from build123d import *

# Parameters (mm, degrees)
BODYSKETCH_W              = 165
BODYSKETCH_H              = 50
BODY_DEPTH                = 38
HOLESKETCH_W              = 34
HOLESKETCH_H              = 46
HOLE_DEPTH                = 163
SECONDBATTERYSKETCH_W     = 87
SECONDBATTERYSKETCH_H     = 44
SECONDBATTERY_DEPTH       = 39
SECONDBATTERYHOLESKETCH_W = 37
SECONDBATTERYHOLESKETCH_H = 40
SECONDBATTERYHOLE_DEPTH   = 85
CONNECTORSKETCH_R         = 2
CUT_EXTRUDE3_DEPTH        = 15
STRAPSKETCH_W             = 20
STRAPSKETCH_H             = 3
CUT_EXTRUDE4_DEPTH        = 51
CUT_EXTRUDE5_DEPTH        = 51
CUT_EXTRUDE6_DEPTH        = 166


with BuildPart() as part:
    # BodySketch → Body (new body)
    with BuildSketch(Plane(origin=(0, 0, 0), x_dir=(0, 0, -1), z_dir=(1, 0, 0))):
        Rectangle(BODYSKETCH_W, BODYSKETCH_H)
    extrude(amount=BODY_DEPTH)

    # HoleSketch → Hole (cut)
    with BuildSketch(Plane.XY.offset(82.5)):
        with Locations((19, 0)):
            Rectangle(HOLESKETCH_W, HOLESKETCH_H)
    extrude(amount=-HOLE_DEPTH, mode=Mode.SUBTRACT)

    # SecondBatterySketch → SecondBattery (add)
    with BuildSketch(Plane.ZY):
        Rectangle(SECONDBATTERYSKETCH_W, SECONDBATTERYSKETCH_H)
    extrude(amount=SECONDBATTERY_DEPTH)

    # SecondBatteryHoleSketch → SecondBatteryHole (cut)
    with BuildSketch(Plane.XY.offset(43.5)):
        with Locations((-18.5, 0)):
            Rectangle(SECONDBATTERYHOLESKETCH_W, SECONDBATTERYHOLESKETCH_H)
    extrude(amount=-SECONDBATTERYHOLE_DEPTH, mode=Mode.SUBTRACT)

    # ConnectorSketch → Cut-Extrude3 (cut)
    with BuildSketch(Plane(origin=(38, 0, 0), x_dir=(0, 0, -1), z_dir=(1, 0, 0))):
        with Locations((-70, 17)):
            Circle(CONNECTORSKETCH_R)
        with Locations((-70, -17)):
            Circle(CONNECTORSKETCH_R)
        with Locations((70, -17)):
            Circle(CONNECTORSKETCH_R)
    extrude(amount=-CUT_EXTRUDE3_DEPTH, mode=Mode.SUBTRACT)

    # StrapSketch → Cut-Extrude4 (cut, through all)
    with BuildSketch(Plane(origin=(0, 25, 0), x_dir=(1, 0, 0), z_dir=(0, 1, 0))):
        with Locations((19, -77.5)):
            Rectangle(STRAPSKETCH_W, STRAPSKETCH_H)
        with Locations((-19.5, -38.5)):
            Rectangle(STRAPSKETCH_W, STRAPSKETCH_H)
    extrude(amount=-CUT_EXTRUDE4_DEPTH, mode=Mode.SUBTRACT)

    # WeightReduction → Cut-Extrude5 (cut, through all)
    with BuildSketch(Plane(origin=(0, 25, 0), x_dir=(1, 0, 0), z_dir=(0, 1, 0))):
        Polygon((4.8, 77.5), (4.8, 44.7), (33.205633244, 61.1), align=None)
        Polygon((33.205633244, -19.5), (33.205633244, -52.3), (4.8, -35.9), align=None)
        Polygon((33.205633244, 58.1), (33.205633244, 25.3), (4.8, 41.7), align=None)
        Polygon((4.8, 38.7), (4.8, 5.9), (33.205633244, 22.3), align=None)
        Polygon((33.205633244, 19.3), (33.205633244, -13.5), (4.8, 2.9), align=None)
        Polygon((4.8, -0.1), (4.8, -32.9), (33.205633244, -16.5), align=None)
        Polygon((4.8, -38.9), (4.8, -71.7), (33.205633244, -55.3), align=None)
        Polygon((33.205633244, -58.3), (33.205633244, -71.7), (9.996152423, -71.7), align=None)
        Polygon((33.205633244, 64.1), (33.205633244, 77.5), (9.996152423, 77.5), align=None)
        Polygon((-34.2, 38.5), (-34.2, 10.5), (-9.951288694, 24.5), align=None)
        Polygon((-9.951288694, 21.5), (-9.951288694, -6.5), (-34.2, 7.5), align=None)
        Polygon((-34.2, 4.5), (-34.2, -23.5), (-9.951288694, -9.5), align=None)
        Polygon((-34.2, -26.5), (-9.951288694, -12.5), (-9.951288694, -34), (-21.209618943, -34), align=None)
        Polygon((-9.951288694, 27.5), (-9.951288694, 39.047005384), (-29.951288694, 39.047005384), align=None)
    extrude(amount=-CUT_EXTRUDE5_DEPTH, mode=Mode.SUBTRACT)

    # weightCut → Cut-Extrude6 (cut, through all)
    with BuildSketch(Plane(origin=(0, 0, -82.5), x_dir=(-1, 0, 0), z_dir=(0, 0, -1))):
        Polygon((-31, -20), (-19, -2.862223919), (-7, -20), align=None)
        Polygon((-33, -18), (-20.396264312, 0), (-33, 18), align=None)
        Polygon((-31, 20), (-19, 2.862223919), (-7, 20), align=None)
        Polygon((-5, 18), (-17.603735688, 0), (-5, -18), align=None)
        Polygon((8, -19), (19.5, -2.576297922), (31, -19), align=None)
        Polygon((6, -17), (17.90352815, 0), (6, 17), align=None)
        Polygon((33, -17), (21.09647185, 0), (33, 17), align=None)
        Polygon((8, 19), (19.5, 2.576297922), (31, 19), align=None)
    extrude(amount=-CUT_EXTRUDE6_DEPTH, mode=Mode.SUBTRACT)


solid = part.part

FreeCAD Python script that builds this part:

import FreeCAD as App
import Part
import Sketcher
Q = App.Units.Quantity

doc = App.newDocument("Part")
body = doc.addObject("PartDesign::Body", "Body")

# Sketch on YZ plane
sketch1 = doc.addObject("Sketcher::SketchObject", "Sketch")
body.addObject(sketch1)
sketch1.AttachmentSupport = (doc.YZ_Plane, [""])
sketch1.MapMode = "FlatFace"
sketch1.addGeometry(Part.LineSegment(App.Vector(25, 82, 0), App.Vector(-25, 82, 0)), False)
sketch1.addGeometry(Part.LineSegment(App.Vector(-25, 82, 0), App.Vector(-25, -82, 0)), False)
sketch1.addGeometry(Part.LineSegment(App.Vector(-25, -82, 0), App.Vector(25, -82, 0)), False)
sketch1.addGeometry(Part.LineSegment(App.Vector(25, -82, 0), App.Vector(25, 82, 0)), False)
sketch1.addConstraint(Sketcher.Constraint("Coincident", 0, 2, 1, 1))
sketch1.addConstraint(Sketcher.Constraint("Coincident", 1, 2, 2, 1))
sketch1.addConstraint(Sketcher.Constraint("Coincident", 2, 2, 3, 1))
sketch1.addConstraint(Sketcher.Constraint("Coincident", 3, 2, 0, 1))
sketch1.addConstraint(Sketcher.Constraint("Horizontal", 0))
sketch1.addConstraint(Sketcher.Constraint("Vertical", 1))
sketch1.addConstraint(Sketcher.Constraint("Horizontal", 2))
sketch1.addConstraint(Sketcher.Constraint("Vertical", 3))
sketch1.addConstraint(Sketcher.Constraint("Symmetric", 0, 2, 2, 2, -1, 1))
sketch1.addConstraint(Sketcher.Constraint("DistanceX", 0, 2, 0, 1, Q("50 mm")))
sketch1.addConstraint(Sketcher.Constraint("DistanceY", 1, 2, 1, 1, Q("165 mm")))
pad1 = doc.addObject("PartDesign::Pad", "Pad")
body.addObject(pad1)
pad1.Profile = sketch1
pad1.Length = 38

# Sketch on XY plane
sketch2 = doc.addObject("Sketcher::SketchObject", "Sketch001")
body.addObject(sketch2)
sketch2.AttachmentSupport = (doc.XY_Plane, [""])
sketch2.MapMode = "FlatFace"
sketch2.AttachmentOffset = App.Placement(App.Vector(0, 0, 82.5), App.Rotation())
sketch2.addGeometry(Part.LineSegment(App.Vector(2, 23, 0), App.Vector(2, -23, 0)), False)
sketch2.addGeometry(Part.LineSegment(App.Vector(2, -23, 0), App.Vector(36, -23, 0)), False)
sketch2.addGeometry(Part.LineSegment(App.Vector(36, -23, 0), App.Vector(36, 23, 0)), False)
sketch2.addGeometry(Part.LineSegment(App.Vector(36, 23, 0), App.Vector(2, 23, 0)), False)
sketch2.addConstraint(Sketcher.Constraint("Coincident", 0, 2, 1, 1))
sketch2.addConstraint(Sketcher.Constraint("Coincident", 1, 2, 2, 1))
sketch2.addConstraint(Sketcher.Constraint("Coincident", 2, 2, 3, 1))
sketch2.addConstraint(Sketcher.Constraint("Coincident", 3, 2, 0, 1))
sketch2.addConstraint(Sketcher.Constraint("Vertical", 0))
sketch2.addConstraint(Sketcher.Constraint("Horizontal", 1))
sketch2.addConstraint(Sketcher.Constraint("Vertical", 2))
sketch2.addConstraint(Sketcher.Constraint("Horizontal", 3))
sketch2.addConstraint(Sketcher.Constraint("DistanceX", 1, 1, 1, 2, Q("34 mm")))
sketch2.addConstraint(Sketcher.Constraint("DistanceY", 0, 2, 0, 1, Q("46 mm")))
sketch2.addConstraint(Sketcher.Constraint("DistanceX", -1, 1, 0, 2, Q("2 mm")))
sketch2.addConstraint(Sketcher.Constraint("DistanceY", 0, 2, -1, 1, Q("23 mm")))
pocket1 = doc.addObject("PartDesign::Pocket", "Pocket")
body.addObject(pocket1)
pocket1.Profile = sketch2
pocket1.Length = 163

# Sketch on YZ plane
sketch3 = doc.addObject("Sketcher::SketchObject", "Sketch002")
body.addObject(sketch3)
sketch3.AttachmentSupport = (doc.YZ_Plane, [""])
sketch3.MapMode = "FlatFace"
sketch3.addGeometry(Part.LineSegment(App.Vector(22, -44, 0), App.Vector(-22, -44, 0)), False)
sketch3.addGeometry(Part.LineSegment(App.Vector(-22, -44, 0), App.Vector(-22, 44, 0)), False)
sketch3.addGeometry(Part.LineSegment(App.Vector(-22, 44, 0), App.Vector(22, 44, 0)), False)
sketch3.addGeometry(Part.LineSegment(App.Vector(22, 44, 0), App.Vector(22, -44, 0)), False)
sketch3.addConstraint(Sketcher.Constraint("Coincident", 0, 2, 1, 1))
sketch3.addConstraint(Sketcher.Constraint("Coincident", 1, 2, 2, 1))
sketch3.addConstraint(Sketcher.Constraint("Coincident", 2, 2, 3, 1))
sketch3.addConstraint(Sketcher.Constraint("Coincident", 3, 2, 0, 1))
sketch3.addConstraint(Sketcher.Constraint("Horizontal", 0))
sketch3.addConstraint(Sketcher.Constraint("Vertical", 1))
sketch3.addConstraint(Sketcher.Constraint("Horizontal", 2))
sketch3.addConstraint(Sketcher.Constraint("Vertical", 3))
sketch3.addConstraint(Sketcher.Constraint("Symmetric", 0, 2, 2, 2, -1, 1))
sketch3.addConstraint(Sketcher.Constraint("DistanceX", 0, 2, 0, 1, Q("44 mm")))
sketch3.addConstraint(Sketcher.Constraint("DistanceY", 1, 1, 1, 2, Q("87 mm")))
pad2 = doc.addObject("PartDesign::Pad", "Pad001")
body.addObject(pad2)
pad2.Profile = sketch3
pad2.Length = 39
pad2.Reversed = True

# Sketch on XY plane
sketch4 = doc.addObject("Sketcher::SketchObject", "Sketch003")
body.addObject(sketch4)
sketch4.AttachmentSupport = (doc.XY_Plane, [""])
sketch4.MapMode = "FlatFace"
sketch4.AttachmentOffset = App.Placement(App.Vector(0, 0, 43.5), App.Rotation())
sketch4.addGeometry(Part.LineSegment(App.Vector(-37, 20, 0), App.Vector(-37, -20, 0)), False)
sketch4.addGeometry(Part.LineSegment(App.Vector(-37, -20, 0), App.Vector(0, -20, 0)), False)
sketch4.addGeometry(Part.LineSegment(App.Vector(0, -20, 0), App.Vector(0, 20, 0)), False)
sketch4.addGeometry(Part.LineSegment(App.Vector(0, 20, 0), App.Vector(-37, 20, 0)), False)
sketch4.addConstraint(Sketcher.Constraint("Coincident", 0, 2, 1, 1))
sketch4.addConstraint(Sketcher.Constraint("Coincident", 1, 2, 2, 1))
sketch4.addConstraint(Sketcher.Constraint("Coincident", 2, 2, 3, 1))
sketch4.addConstraint(Sketcher.Constraint("Coincident", 3, 2, 0, 1))
sketch4.addConstraint(Sketcher.Constraint("Vertical", 0))
sketch4.addConstraint(Sketcher.Constraint("Horizontal", 1))
sketch4.addConstraint(Sketcher.Constraint("Vertical", 2))
sketch4.addConstraint(Sketcher.Constraint("Horizontal", 3))
sketch4.addConstraint(Sketcher.Constraint("Symmetric", 1, 2, 2, 2, -1, 1))
sketch4.addConstraint(Sketcher.Constraint("DistanceX", 1, 1, 1, 2, Q("37 mm")))
sketch4.addConstraint(Sketcher.Constraint("DistanceY", 0, 2, 0, 1, Q("40 mm")))
pocket2 = doc.addObject("PartDesign::Pocket", "Pocket001")
body.addObject(pocket2)
pocket2.Profile = sketch4
pocket2.Length = 85

# Sketch on YZ plane
sketch5 = doc.addObject("Sketcher::SketchObject", "Sketch004")
body.addObject(sketch5)
sketch5.AttachmentSupport = (doc.YZ_Plane, [""])
sketch5.MapMode = "FlatFace"
sketch5.AttachmentOffset = App.Placement(App.Vector(0, 0, 38), App.Rotation())
sketch5.addGeometry(Part.Circle(App.Vector(17, 70, 0), App.Vector(0, 0, 1), 2), False)
sketch5.addGeometry(Part.Circle(App.Vector(-17, 70, 0), App.Vector(0, 0, 1), 2), False)
sketch5.addGeometry(Part.Circle(App.Vector(-17, -70, 0), App.Vector(0, 0, 1), 2), False)
sketch5.addConstraint(Sketcher.Constraint("Equal", 0, 1))
sketch5.addConstraint(Sketcher.Constraint("Equal", 1, 2))
sketch5.addConstraint(Sketcher.Constraint("Symmetric", 0, 3, 2, 3, -1, 1))
sketch5.addConstraint(Sketcher.Constraint("Symmetric", 0, 3, 1, 3, -2))
sketch5.addConstraint(Sketcher.Constraint("Diameter", 0, Q("4 mm")))
sketch5.addConstraint(Sketcher.Constraint("DistanceX", -1, 1, 0, 3, Q("17 mm")))
sketch5.addConstraint(Sketcher.Constraint("DistanceY", -1, 1, 0, 3, Q("70 mm")))
pocket3 = doc.addObject("PartDesign::Pocket", "Pocket002")
body.addObject(pocket3)
pocket3.Profile = sketch5
pocket3.Length = 15

# Sketch on XZ plane
sketch6 = doc.addObject("Sketcher::SketchObject", "Sketch005")
body.addObject(sketch6)
sketch6.AttachmentSupport = (doc.XZ_Plane, [""])
sketch6.MapMode = "FlatFace"
sketch6.AttachmentOffset = App.Placement(App.Vector(0, 0, -25), App.Rotation())
sketch6.addGeometry(Part.LineSegment(App.Vector(9, 76, 0), App.Vector(9, 79, 0)), False)
sketch6.addGeometry(Part.LineSegment(App.Vector(9, 79, 0), App.Vector(29, 79, 0)), False)
sketch6.addGeometry(Part.LineSegment(App.Vector(29, 79, 0), App.Vector(29, 76, 0)), False)
sketch6.addGeometry(Part.LineSegment(App.Vector(29, 76, 0), App.Vector(9, 76, 0)), False)
sketch6.addGeometry(Part.LineSegment(App.Vector(-29.5, 37, 0), App.Vector(-29.5, 40, 0)), False)
sketch6.addGeometry(Part.LineSegment(App.Vector(-29.5, 40, 0), App.Vector(-9.5, 40, 0)), False)
sketch6.addGeometry(Part.LineSegment(App.Vector(-9.5, 40, 0), App.Vector(-9.5, 37, 0)), False)
sketch6.addGeometry(Part.LineSegment(App.Vector(-9.5, 37, 0), App.Vector(-29.5, 37, 0)), False)
sketch6.addConstraint(Sketcher.Constraint("Coincident", 0, 2, 1, 1))
sketch6.addConstraint(Sketcher.Constraint("Coincident", 1, 2, 2, 1))
sketch6.addConstraint(Sketcher.Constraint("Coincident", 2, 2, 3, 1))
sketch6.addConstraint(Sketcher.Constraint("Coincident", 3, 2, 0, 1))
sketch6.addConstraint(Sketcher.Constraint("Coincident", 4, 2, 5, 1))
sketch6.addConstraint(Sketcher.Constraint("Coincident", 5, 2, 6, 1))
sketch6.addConstraint(Sketcher.Constraint("Coincident", 6, 2, 7, 1))
sketch6.addConstraint(Sketcher.Constraint("Coincident", 7, 2, 4, 1))
sketch6.addConstraint(Sketcher.Constraint("Vertical", 0))
sketch6.addConstraint(Sketcher.Constraint("Horizontal", 1))
sketch6.addConstraint(Sketcher.Constraint("Vertical", 2))
sketch6.addConstraint(Sketcher.Constraint("Horizontal", 3))
sketch6.addConstraint(Sketcher.Constraint("Vertical", 4))
sketch6.addConstraint(Sketcher.Constraint("Horizontal", 5))
sketch6.addConstraint(Sketcher.Constraint("Vertical", 6))
sketch6.addConstraint(Sketcher.Constraint("Horizontal", 7))
sketch6.addConstraint(Sketcher.Constraint("Equal", 3, 5))
sketch6.addConstraint(Sketcher.Constraint("Equal", 2, 4))
sketch6.addConstraint(Sketcher.Constraint("DistanceX", 1, 1, 1, 2, Q("20 mm")))
sketch6.addConstraint(Sketcher.Constraint("DistanceY", 0, 1, 0, 2, Q("3 mm")))
sketch6.addConstraint(Sketcher.Constraint("DistanceX", -1, 1, 0, 2, Q("9 mm")))
sketch6.addConstraint(Sketcher.Constraint("DistanceY", -1, 1, 0, 2, Q("79 mm")))
sketch6.addConstraint(Sketcher.Constraint("DistanceY", -1, 1, 4, 2, Q("40 mm")))
sketch6.addConstraint(Sketcher.Constraint("DistanceX", 4, 2, -1, 1, Q("29.5 mm")))
pocket4 = doc.addObject("PartDesign::Pocket", "Pocket003")
body.addObject(pocket4)
pocket4.Profile = sketch6
pocket4.Type = "ThroughAll"
pocket4.Reversed = True

# Sketch on XZ plane
sketch7 = doc.addObject("Sketcher::SketchObject", "Sketch006")
body.addObject(sketch7)
sketch7.AttachmentSupport = (doc.XZ_Plane, [""])
sketch7.MapMode = "FlatFace"
sketch7.AttachmentOffset = App.Placement(App.Vector(0, 0, -25), App.Rotation())
sketch7.addGeometry(Part.LineSegment(App.Vector(5, -78, 0), App.Vector(5, -45, 0)), False)
sketch7.addGeometry(Part.LineSegment(App.Vector(5, -45, 0), App.Vector(33, -61, 0)), False)
sketch7.addGeometry(Part.LineSegment(App.Vector(33, -61, 0), App.Vector(5, -78, 0)), False)
sketch7.addGeometry(Part.LineSegment(App.Vector(33, 52, 0), App.Vector(33, 20, 0)), False)
sketch7.addGeometry(Part.LineSegment(App.Vector(33, 20, 0), App.Vector(5, 36, 0)), False)
sketch7.addGeometry(Part.LineSegment(App.Vector(5, 36, 0), App.Vector(33, 52, 0)), False)
sketch7.addGeometry(Part.LineSegment(App.Vector(33, -25, 0), App.Vector(33, -58, 0)), False)
sketch7.addGeometry(Part.LineSegment(App.Vector(33, -58, 0), App.Vector(5, -42, 0)), False)
sketch7.addGeometry(Part.LineSegment(App.Vector(5, -42, 0), App.Vector(33, -25, 0)), False)
sketch7.addGeometry(Part.LineSegment(App.Vector(5, -39, 0), App.Vector(5, -6, 0)), False)
sketch7.addGeometry(Part.LineSegment(App.Vector(5, -6, 0), App.Vector(33, -22, 0)), False)
sketch7.addGeometry(Part.LineSegment(App.Vector(33, -22, 0), App.Vector(5, -39, 0)), False)
sketch7.addGeometry(Part.LineSegment(App.Vector(33, 14, 0), App.Vector(33, -19, 0)), False)
sketch7.addGeometry(Part.LineSegment(App.Vector(33, -19, 0), App.Vector(5, -3, 0)), False)
sketch7.addGeometry(Part.LineSegment(App.Vector(5, -3, 0), App.Vector(33, 14, 0)), False)
sketch7.addGeometry(Part.LineSegment(App.Vector(5, 0, 0), App.Vector(5, 33, 0)), False)
sketch7.addGeometry(Part.LineSegment(App.Vector(5, 33, 0), App.Vector(33, 16, 0)), False)
sketch7.addGeometry(Part.LineSegment(App.Vector(33, 16, 0), App.Vector(5, 0, 0)), False)
sketch7.addGeometry(Part.LineSegment(App.Vector(5, 39, 0), App.Vector(5, 72, 0)), False)
sketch7.addGeometry(Part.LineSegment(App.Vector(5, 72, 0), App.Vector(33, 55, 0)), False)
sketch7.addGeometry(Part.LineSegment(App.Vector(33, 55, 0), App.Vector(5, 39, 0)), False)
sketch7.addGeometry(Part.LineSegment(App.Vector(33, 72, 0), App.Vector(33, 58, 0)), False)
sketch7.addGeometry(Part.LineSegment(App.Vector(33, 58, 0), App.Vector(10, 72, 0)), False)
sketch7.addGeometry(Part.LineSegment(App.Vector(10, 72, 0), App.Vector(33, 72, 0)), False)
sketch7.addGeometry(Part.LineSegment(App.Vector(33, -64, 0), App.Vector(33, -78, 0)), False)
sketch7.addGeometry(Part.LineSegment(App.Vector(33, -78, 0), App.Vector(10, -78, 0)), False)
sketch7.addGeometry(Part.LineSegment(App.Vector(10, -78, 0), App.Vector(33, -64, 0)), False)
sketch7.addGeometry(Part.LineSegment(App.Vector(-34, -38, 0), App.Vector(-34, -10, 0)), False)
sketch7.addGeometry(Part.LineSegment(App.Vector(-34, -10, 0), App.Vector(-10, -24, 0)), False)
sketch7.addGeometry(Part.LineSegment(App.Vector(-10, -24, 0), App.Vector(-34, -38, 0)), False)
sketch7.addGeometry(Part.LineSegment(App.Vector(-10, 6, 0), App.Vector(-10, -22, 0)), False)
sketch7.addGeometry(Part.LineSegment(App.Vector(-10, -22, 0), App.Vector(-34, -8, 0)), False)
sketch7.addGeometry(Part.LineSegment(App.Vector(-34, -8, 0), App.Vector(-10, 6, 0)), False)
sketch7.addGeometry(Part.LineSegment(App.Vector(-34, -4, 0), App.Vector(-34, 24, 0)), False)
sketch7.addGeometry(Part.LineSegment(App.Vector(-34, 24, 0), App.Vector(-10, 10, 0)), False)
sketch7.addGeometry(Part.LineSegment(App.Vector(-10, 10, 0), App.Vector(-34, -4, 0)), False)
sketch7.addGeometry(Part.LineSegment(App.Vector(-10, 12, 0), App.Vector(-34, 26, 0)), False)
sketch7.addGeometry(Part.LineSegment(App.Vector(-34, 26, 0), App.Vector(-21, 34, 0)), False)
sketch7.addGeometry(Part.LineSegment(App.Vector(-21, 34, 0), App.Vector(-10, 34, 0)), False)
sketch7.addGeometry(Part.LineSegment(App.Vector(-10, 34, 0), App.Vector(-10, 12, 0)), False)
sketch7.addGeometry(Part.LineSegment(App.Vector(-10, -28, 0), App.Vector(-10, -39, 0)), False)
sketch7.addGeometry(Part.LineSegment(App.Vector(-10, -39, 0), App.Vector(-30, -39, 0)), False)
sketch7.addGeometry(Part.LineSegment(App.Vector(-30, -39, 0), App.Vector(-10, -28, 0)), False)
sketch7.addConstraint(Sketcher.Constraint("Coincident", 0, 2, 1, 1))
sketch7.addConstraint(Sketcher.Constraint("Coincident", 1, 2, 2, 1))
sketch7.addConstraint(Sketcher.Constraint("Coincident", 2, 2, 0, 1))
sketch7.addConstraint(Sketcher.Constraint("Coincident", 3, 2, 4, 1))
sketch7.addConstraint(Sketcher.Constraint("Coincident", 4, 2, 5, 1))
sketch7.addConstraint(Sketcher.Constraint("Coincident", 5, 2, 3, 1))
sketch7.addConstraint(Sketcher.Constraint("Coincident", 6, 2, 7, 1))
sketch7.addConstraint(Sketcher.Constraint("Coincident", 7, 2, 8, 1))
sketch7.addConstraint(Sketcher.Constraint("Coincident", 8, 2, 6, 1))
sketch7.addConstraint(Sketcher.Constraint("Coincident", 9, 2, 10, 1))
sketch7.addConstraint(Sketcher.Constraint("Coincident", 10, 2, 11, 1))
sketch7.addConstraint(Sketcher.Constraint("Coincident", 11, 2, 9, 1))
sketch7.addConstraint(Sketcher.Constraint("Coincident", 12, 2, 13, 1))
sketch7.addConstraint(Sketcher.Constraint("Coincident", 13, 2, 14, 1))
sketch7.addConstraint(Sketcher.Constraint("Coincident", 14, 2, 12, 1))
sketch7.addConstraint(Sketcher.Constraint("Coincident", 15, 2, 16, 1))
sketch7.addConstraint(Sketcher.Constraint("Coincident", 16, 2, 17, 1))
sketch7.addConstraint(Sketcher.Constraint("Coincident", 17, 2, 15, 1))
sketch7.addConstraint(Sketcher.Constraint("Coincident", 18, 2, 19, 1))
sketch7.addConstraint(Sketcher.Constraint("Coincident", 19, 2, 20, 1))
sketch7.addConstraint(Sketcher.Constraint("Coincident", 20, 2, 18, 1))
sketch7.addConstraint(Sketcher.Constraint("Coincident", 21, 2, 22, 1))
sketch7.addConstraint(Sketcher.Constraint("Coincident", 22, 2, 23, 1))
sketch7.addConstraint(Sketcher.Constraint("Coincident", 23, 2, 21, 1))
sketch7.addConstraint(Sketcher.Constraint("Coincident", 24, 2, 25, 1))
sketch7.addConstraint(Sketcher.Constraint("Coincident", 25, 2, 26, 1))
sketch7.addConstraint(Sketcher.Constraint("Coincident", 26, 2, 24, 1))
sketch7.addConstraint(Sketcher.Constraint("Coincident", 27, 2, 28, 1))
sketch7.addConstraint(Sketcher.Constraint("Coincident", 28, 2, 29, 1))
sketch7.addConstraint(Sketcher.Constraint("Coincident", 29, 2, 27, 1))
sketch7.addConstraint(Sketcher.Constraint("Coincident", 30, 2, 31, 1))
sketch7.addConstraint(Sketcher.Constraint("Coincident", 31, 2, 32, 1))
sketch7.addConstraint(Sketcher.Constraint("Coincident", 32, 2, 30, 1))
sketch7.addConstraint(Sketcher.Constraint("Coincident", 33, 2, 34, 1))
sketch7.addConstraint(Sketcher.Constraint("Coincident", 34, 2, 35, 1))
sketch7.addConstraint(Sketcher.Constraint("Coincident", 35, 2, 33, 1))
sketch7.addConstraint(Sketcher.Constraint("Coincident", 36, 2, 37, 1))
sketch7.addConstraint(Sketcher.Constraint("Coincident", 37, 2, 38, 1))
sketch7.addConstraint(Sketcher.Constraint("Coincident", 38, 2, 39, 1))
sketch7.addConstraint(Sketcher.Constraint("Coincident", 39, 2, 36, 1))
sketch7.addConstraint(Sketcher.Constraint("Coincident", 40, 2, 41, 1))
sketch7.addConstraint(Sketcher.Constraint("Coincident", 41, 2, 42, 1))
sketch7.addConstraint(Sketcher.Constraint("Coincident", 42, 2, 40, 1))
sketch7.addConstraint(Sketcher.Constraint("Vertical", 0))
sketch7.addConstraint(Sketcher.Constraint("Vertical", 3))
sketch7.addConstraint(Sketcher.Constraint("Vertical", 6))
sketch7.addConstraint(Sketcher.Constraint("Vertical", 9))
sketch7.addConstraint(Sketcher.Constraint("Vertical", 12))
sketch7.addConstraint(Sketcher.Constraint("Vertical", 15))
sketch7.addConstraint(Sketcher.Constraint("Vertical", 18))
sketch7.addConstraint(Sketcher.Constraint("Vertical", 21))
sketch7.addConstraint(Sketcher.Constraint("Horizontal", 23))
sketch7.addConstraint(Sketcher.Constraint("Vertical", 24))
sketch7.addConstraint(Sketcher.Constraint("Horizontal", 25))
sketch7.addConstraint(Sketcher.Constraint("Vertical", 27))
sketch7.addConstraint(Sketcher.Constraint("Vertical", 30))
sketch7.addConstraint(Sketcher.Constraint("Vertical", 33))
sketch7.addConstraint(Sketcher.Constraint("Horizontal", 38))
sketch7.addConstraint(Sketcher.Constraint("Vertical", 39))
sketch7.addConstraint(Sketcher.Constraint("Vertical", 40))
sketch7.addConstraint(Sketcher.Constraint("Horizontal", 41))
sketch7.addConstraint(Sketcher.Constraint("Parallel", 1, 4))
sketch7.addConstraint(Sketcher.Constraint("Parallel", 2, 5))
sketch7.addConstraint(Sketcher.Constraint("Parallel", 4, 7))
sketch7.addConstraint(Sketcher.Constraint("Parallel", 5, 8))
sketch7.addConstraint(Sketcher.Constraint("Parallel", 7, 10))
sketch7.addConstraint(Sketcher.Constraint("Parallel", 8, 11))
sketch7.addConstraint(Sketcher.Constraint("Parallel", 10, 13))
sketch7.addConstraint(Sketcher.Constraint("Parallel", 11, 14))
sketch7.addConstraint(Sketcher.Constraint("Parallel", 13, 16))
sketch7.addConstraint(Sketcher.Constraint("Parallel", 14, 17))
sketch7.addConstraint(Sketcher.Constraint("Parallel", 16, 19))
sketch7.addConstraint(Sketcher.Constraint("Parallel", 17, 20))
sketch7.addConstraint(Sketcher.Constraint("Parallel", 19, 22))
sketch7.addConstraint(Sketcher.Constraint("Parallel", 20, 26))
sketch7.addConstraint(Sketcher.Constraint("Parallel", 22, 28))
sketch7.addConstraint(Sketcher.Constraint("Parallel", 26, 29))
sketch7.addConstraint(Sketcher.Constraint("Parallel", 28, 31))
sketch7.addConstraint(Sketcher.Constraint("Parallel", 29, 32))
sketch7.addConstraint(Sketcher.Constraint("Parallel", 31, 34))
sketch7.addConstraint(Sketcher.Constraint("Parallel", 32, 35))
sketch7.addConstraint(Sketcher.Constraint("Parallel", 34, 36))
sketch7.addConstraint(Sketcher.Constraint("Parallel", 35, 37))
sketch7.addConstraint(Sketcher.Constraint("Parallel", 37, 42))
sketch7.addConstraint(Sketcher.Constraint("Horizontal", 18, 2, 22, 2))
sketch7.addConstraint(Sketcher.Constraint("Horizontal", 2, 2, 24, 2))
sketch7.addConstraint(Sketcher.Constraint("Vertical", 1, 2, 3, 2))
sketch7.addConstraint(Sketcher.Constraint("Vertical", 2, 2, 4, 2))
sketch7.addConstraint(Sketcher.Constraint("Vertical", 5, 2, 6, 2))
sketch7.addConstraint(Sketcher.Constraint("Vertical", 4, 2, 7, 2))
sketch7.addConstraint(Sketcher.Constraint("Vertical", 7, 2, 9, 2))
sketch7.addConstraint(Sketcher.Constraint("Vertical", 8, 2, 10, 2))
sketch7.addConstraint(Sketcher.Constraint("Vertical", 10, 2, 12, 2))
sketch7.addConstraint(Sketcher.Constraint("Vertical", 11, 2, 13, 2))
sketch7.addConstraint(Sketcher.Constraint("Vertical", 13, 2, 15, 2))
sketch7.addConstraint(Sketcher.Constraint("Vertical", 14, 2, 16, 2))
sketch7.addConstraint(Sketcher.Constraint("Vertical", 17, 2, 18, 2))
sketch7.addConstraint(Sketcher.Constraint("Vertical", 16, 2, 19, 2))
sketch7.addConstraint(Sketcher.Constraint("Vertical", 19, 2, 21, 2))
sketch7.addConstraint(Sketcher.Constraint("Vertical", 23, 2, 24, 2))
sketch7.addConstraint(Sketcher.Constraint("Vertical", 22, 2, 25, 2))
sketch7.addConstraint(Sketcher.Constraint("Vertical", 28, 2, 30, 2))
sketch7.addConstraint(Sketcher.Constraint("Vertical", 29, 2, 31, 2))
sketch7.addConstraint(Sketcher.Constraint("Vertical", 31, 2, 33, 2))
sketch7.addConstraint(Sketcher.Constraint("Vertical", 32, 2, 34, 2))
sketch7.addConstraint(Sketcher.Constraint("Vertical", 35, 2, 36, 2))
sketch7.addConstraint(Sketcher.Constraint("Vertical", 34, 2, 38, 2))
sketch7.addConstraint(Sketcher.Constraint("Vertical", 39, 2, 40, 2))
sketch7.addConstraint(Sketcher.Constraint("Equal", 21, 24))
sketch7.addConstraint(Sketcher.Constraint("DistanceX", 41, 2, 41, 1, Q("20 mm")))
sketch7.addConstraint(Sketcher.Constraint("DistanceY", 27, 1, 27, 2, Q("28 mm")))
sketch7.addConstraint(Sketcher.Constraint("Angle", 1, Q("-30 deg")))
sketch7.addConstraint(Sketcher.Constraint("Distance", 37, Q("15 mm")))
sketch7.addConstraint(Sketcher.Constraint("DistanceY", 0, 1, 0, 2, Q("32.8 mm")))
sketch7.addConstraint(Sketcher.Constraint("DistanceY", 21, 2, 21, 1, Q("13.4 mm")))
sketch7.addConstraint(Sketcher.Constraint("DistanceY", -1, 1, 37, 2, Q("34 mm")))
sketch7.addConstraint(Sketcher.Constraint("DistanceY", 2, 2, 3, 2, Q("97 mm")))
sketch7.addConstraint(Sketcher.Constraint("DistanceY", 1, 2, 6, 2, Q("3 mm")))
sketch7.addConstraint(Sketcher.Constraint("DistanceY", 8, 2, 10, 2, Q("3 mm")))
sketch7.addConstraint(Sketcher.Constraint("DistanceY", 10, 2, 12, 2, Q("3 mm")))
sketch7.addConstraint(Sketcher.Constraint("DistanceY", 15, 2, 4, 2, Q("3 mm")))
sketch7.addConstraint(Sketcher.Constraint("DistanceY", 5, 2, 19, 2, Q("3 mm")))
sketch7.addConstraint(Sketcher.Constraint("DistanceX", 27, 2, 9, 2, Q("39 mm")))
sketch7.addConstraint(Sketcher.Constraint("DistanceY", 28, 2, 30, 2, Q("3 mm")))
sketch7.addConstraint(Sketcher.Constraint("DistanceY", 32, 2, 33, 2, Q("17 mm")))
sketch7.addConstraint(Sketcher.Constraint("DistanceY", 33, 2, 36, 2, Q("3 mm")))
sketch7.addConstraint(Sketcher.Constraint("DistanceY", 42, 2, 28, 2, Q("3 mm")))
sketch7.addConstraint(Sketcher.Constraint("DistanceX", -1, 1, 0, 2, Q("4.8 mm")))
sketch7.addConstraint(Sketcher.Constraint("DistanceY", 0, 2, -1, 1, Q("44.7 mm")))
pocket5 = doc.addObject("PartDesign::Pocket", "Pocket004")
body.addObject(pocket5)
pocket5.Profile = sketch7
pocket5.Type = "ThroughAll"
pocket5.Reversed = True

# Sketch on XY plane
sketch8 = doc.addObject("Sketcher::SketchObject", "Sketch007")
body.addObject(sketch8)
sketch8.AttachmentSupport = (doc.XY_Plane, [""])
sketch8.MapMode = "FlatFace"
sketch8.AttachmentOffset = App.Placement(App.Vector(0, 0, -82.5), App.Rotation())
sketch8.addGeometry(Part.LineSegment(App.Vector(19, -3, 0), App.Vector(31, -20, 0)), False)
sketch8.addGeometry(Part.LineSegment(App.Vector(31, -20, 0), App.Vector(7, -20, 0)), False)
sketch8.addGeometry(Part.LineSegment(App.Vector(7, -20, 0), App.Vector(19, -3, 0)), False)
sketch8.addGeometry(Part.LineSegment(App.Vector(33, -18, 0), App.Vector(20, 0, 0)), False)
sketch8.addGeometry(Part.LineSegment(App.Vector(20, 0, 0), App.Vector(33, 18, 0)), False)
sketch8.addGeometry(Part.LineSegment(App.Vector(33, 18, 0), App.Vector(33, -18, 0)), False)
sketch8.addGeometry(Part.LineSegment(App.Vector(31, 20, 0), App.Vector(19, 3, 0)), False)
sketch8.addGeometry(Part.LineSegment(App.Vector(19, 3, 0), App.Vector(7, 20, 0)), False)
sketch8.addGeometry(Part.LineSegment(App.Vector(7, 20, 0), App.Vector(31, 20, 0)), False)
sketch8.addGeometry(Part.LineSegment(App.Vector(5, 18, 0), App.Vector(18, 0, 0)), False)
sketch8.addGeometry(Part.LineSegment(App.Vector(18, 0, 0), App.Vector(5, -18, 0)), False)
sketch8.addGeometry(Part.LineSegment(App.Vector(5, -18, 0), App.Vector(5, 18, 0)), False)
sketch8.addGeometry(Part.LineSegment(App.Vector(-20, -3, 0), App.Vector(-8, -19, 0)), False)
sketch8.addGeometry(Part.LineSegment(App.Vector(-8, -19, 0), App.Vector(-31, -19, 0)), False)
sketch8.addGeometry(Part.LineSegment(App.Vector(-31, -19, 0), App.Vector(-20, -3, 0)), False)
sketch8.addGeometry(Part.LineSegment(App.Vector(-6, -17, 0), App.Vector(-18, 0, 0)), False)
sketch8.addGeometry(Part.LineSegment(App.Vector(-18, 0, 0), App.Vector(-6, 17, 0)), False)
sketch8.addGeometry(Part.LineSegment(App.Vector(-6, 17, 0), App.Vector(-6, -17, 0)), False)
sketch8.addGeometry(Part.LineSegment(App.Vector(-21, 0, 0), App.Vector(-33, -17, 0)), False)
sketch8.addGeometry(Part.LineSegment(App.Vector(-33, -17, 0), App.Vector(-33, 17, 0)), False)
sketch8.addGeometry(Part.LineSegment(App.Vector(-33, 17, 0), App.Vector(-21, 0, 0)), False)
sketch8.addGeometry(Part.LineSegment(App.Vector(-8, 19, 0), App.Vector(-20, 3, 0)), False)
sketch8.addGeometry(Part.LineSegment(App.Vector(-20, 3, 0), App.Vector(-31, 19, 0)), False)
sketch8.addGeometry(Part.LineSegment(App.Vector(-31, 19, 0), App.Vector(-8, 19, 0)), False)
sketch8.addConstraint(Sketcher.Constraint("Coincident", 0, 2, 1, 1))
sketch8.addConstraint(Sketcher.Constraint("Coincident", 1, 2, 2, 1))
sketch8.addConstraint(Sketcher.Constraint("Coincident", 2, 2, 0, 1))
sketch8.addConstraint(Sketcher.Constraint("Coincident", 3, 2, 4, 1))
sketch8.addConstraint(Sketcher.Constraint("Coincident", 4, 2, 5, 1))
sketch8.addConstraint(Sketcher.Constraint("Coincident", 5, 2, 3, 1))
sketch8.addConstraint(Sketcher.Constraint("Coincident", 6, 2, 7, 1))
sketch8.addConstraint(Sketcher.Constraint("Coincident", 7, 2, 8, 1))
sketch8.addConstraint(Sketcher.Constraint("Coincident", 8, 2, 6, 1))
sketch8.addConstraint(Sketcher.Constraint("Coincident", 9, 2, 10, 1))
sketch8.addConstraint(Sketcher.Constraint("Coincident", 10, 2, 11, 1))
sketch8.addConstraint(Sketcher.Constraint("Coincident", 11, 2, 9, 1))
sketch8.addConstraint(Sketcher.Constraint("Coincident", 12, 2, 13, 1))
sketch8.addConstraint(Sketcher.Constraint("Coincident", 13, 2, 14, 1))
sketch8.addConstraint(Sketcher.Constraint("Coincident", 14, 2, 12, 1))
sketch8.addConstraint(Sketcher.Constraint("Coincident", 15, 2, 16, 1))
sketch8.addConstraint(Sketcher.Constraint("Coincident", 16, 2, 17, 1))
sketch8.addConstraint(Sketcher.Constraint("Coincident", 17, 2, 15, 1))
sketch8.addConstraint(Sketcher.Constraint("Coincident", 18, 2, 19, 1))
sketch8.addConstraint(Sketcher.Constraint("Coincident", 19, 2, 20, 1))
sketch8.addConstraint(Sketcher.Constraint("Coincident", 20, 2, 18, 1))
sketch8.addConstraint(Sketcher.Constraint("Coincident", 21, 2, 22, 1))
sketch8.addConstraint(Sketcher.Constraint("Coincident", 22, 2, 23, 1))
sketch8.addConstraint(Sketcher.Constraint("Coincident", 23, 2, 21, 1))
sketch8.addConstraint(Sketcher.Constraint("Horizontal", 1))
sketch8.addConstraint(Sketcher.Constraint("Vertical", 5))
sketch8.addConstraint(Sketcher.Constraint("Horizontal", 8))
sketch8.addConstraint(Sketcher.Constraint("Vertical", 11))
sketch8.addConstraint(Sketcher.Constraint("Horizontal", 13))
sketch8.addConstraint(Sketcher.Constraint("Vertical", 17))
sketch8.addConstraint(Sketcher.Constraint("Vertical", 19))
sketch8.addConstraint(Sketcher.Constraint("Horizontal", 23))
sketch8.addConstraint(Sketcher.Constraint("Symmetric", 2, 2, 6, 2, -1))
sketch8.addConstraint(Sketcher.Constraint("Symmetric", 1, 2, 7, 2, -1))
sketch8.addConstraint(Sketcher.Constraint("Symmetric", 14, 2, 21, 2, -1))
sketch8.addConstraint(Sketcher.Constraint("Symmetric", 13, 2, 22, 2, -1))
sketch8.addConstraint(Sketcher.Constraint("PointOnObject", 3, 2, -1))
sketch8.addConstraint(Sketcher.Constraint("PointOnObject", 9, 2, -1))
sketch8.addConstraint(Sketcher.Constraint("PointOnObject", 15, 2, -1))
sketch8.addConstraint(Sketcher.Constraint("PointOnObject", 20, 2, -1))
sketch8.addConstraint(Sketcher.Constraint("Parallel", 0, 3))
sketch8.addConstraint(Sketcher.Constraint("Parallel", 2, 4))
sketch8.addConstraint(Sketcher.Constraint("Parallel", 4, 6))
sketch8.addConstraint(Sketcher.Constraint("Parallel", 3, 7))
sketch8.addConstraint(Sketcher.Constraint("Parallel", 7, 9))
sketch8.addConstraint(Sketcher.Constraint("Parallel", 6, 10))
sketch8.addConstraint(Sketcher.Constraint("Parallel", 9, 12))
sketch8.addConstraint(Sketcher.Constraint("Parallel", 10, 14))
sketch8.addConstraint(Sketcher.Constraint("Parallel", 12, 15))
sketch8.addConstraint(Sketcher.Constraint("Parallel", 14, 16))
sketch8.addConstraint(Sketcher.Constraint("Parallel", 16, 18))
sketch8.addConstraint(Sketcher.Constraint("Parallel", 15, 20))
sketch8.addConstraint(Sketcher.Constraint("Parallel", 18, 21))
sketch8.addConstraint(Sketcher.Constraint("Horizontal", 5, 2, 10, 2))
sketch8.addConstraint(Sketcher.Constraint("Horizontal", 17, 2, 18, 2))
sketch8.addConstraint(Sketcher.Constraint("DistanceX", 1, 2, 1, 1, Q("24 mm")))
sketch8.addConstraint(Sketcher.Constraint("DistanceX", 13, 2, 13, 1, Q("23 mm")))
sketch8.addConstraint(Sketcher.Constraint("DistanceY", 5, 2, 5, 1, Q("36 mm")))
sketch8.addConstraint(Sketcher.Constraint("DistanceY", 17, 2, 17, 1, Q("34 mm")))
sketch8.addConstraint(Sketcher.Constraint("Angle", 0, Q("-55 deg")))
sketch8.addConstraint(Sketcher.Constraint("DistanceX", -1, 1, 0, 2, Q("31 mm")))
sketch8.addConstraint(Sketcher.Constraint("DistanceY", 0, 2, -1, 1, Q("20 mm")))
sketch8.addConstraint(Sketcher.Constraint("DistanceX", -1, 1, 4, 2, Q("33 mm")))
sketch8.addConstraint(Sketcher.Constraint("DistanceX", -1, 1, 10, 2, Q("5 mm")))
sketch8.addConstraint(Sketcher.Constraint("DistanceX", 12, 2, -1, 1, Q("8 mm")))
sketch8.addConstraint(Sketcher.Constraint("DistanceY", 12, 2, -1, 1, Q("19 mm")))
sketch8.addConstraint(Sketcher.Constraint("DistanceX", 16, 2, -1, 1, Q("6 mm")))
sketch8.addConstraint(Sketcher.Constraint("DistanceX", 18, 2, -1, 1, Q("33 mm")))
pocket6 = doc.addObject("PartDesign::Pocket", "Pocket005")
body.addObject(pocket6)
pocket6.Profile = sketch8
pocket6.Type = "ThroughAll"
pocket6.Reversed = True

doc.recompute()
